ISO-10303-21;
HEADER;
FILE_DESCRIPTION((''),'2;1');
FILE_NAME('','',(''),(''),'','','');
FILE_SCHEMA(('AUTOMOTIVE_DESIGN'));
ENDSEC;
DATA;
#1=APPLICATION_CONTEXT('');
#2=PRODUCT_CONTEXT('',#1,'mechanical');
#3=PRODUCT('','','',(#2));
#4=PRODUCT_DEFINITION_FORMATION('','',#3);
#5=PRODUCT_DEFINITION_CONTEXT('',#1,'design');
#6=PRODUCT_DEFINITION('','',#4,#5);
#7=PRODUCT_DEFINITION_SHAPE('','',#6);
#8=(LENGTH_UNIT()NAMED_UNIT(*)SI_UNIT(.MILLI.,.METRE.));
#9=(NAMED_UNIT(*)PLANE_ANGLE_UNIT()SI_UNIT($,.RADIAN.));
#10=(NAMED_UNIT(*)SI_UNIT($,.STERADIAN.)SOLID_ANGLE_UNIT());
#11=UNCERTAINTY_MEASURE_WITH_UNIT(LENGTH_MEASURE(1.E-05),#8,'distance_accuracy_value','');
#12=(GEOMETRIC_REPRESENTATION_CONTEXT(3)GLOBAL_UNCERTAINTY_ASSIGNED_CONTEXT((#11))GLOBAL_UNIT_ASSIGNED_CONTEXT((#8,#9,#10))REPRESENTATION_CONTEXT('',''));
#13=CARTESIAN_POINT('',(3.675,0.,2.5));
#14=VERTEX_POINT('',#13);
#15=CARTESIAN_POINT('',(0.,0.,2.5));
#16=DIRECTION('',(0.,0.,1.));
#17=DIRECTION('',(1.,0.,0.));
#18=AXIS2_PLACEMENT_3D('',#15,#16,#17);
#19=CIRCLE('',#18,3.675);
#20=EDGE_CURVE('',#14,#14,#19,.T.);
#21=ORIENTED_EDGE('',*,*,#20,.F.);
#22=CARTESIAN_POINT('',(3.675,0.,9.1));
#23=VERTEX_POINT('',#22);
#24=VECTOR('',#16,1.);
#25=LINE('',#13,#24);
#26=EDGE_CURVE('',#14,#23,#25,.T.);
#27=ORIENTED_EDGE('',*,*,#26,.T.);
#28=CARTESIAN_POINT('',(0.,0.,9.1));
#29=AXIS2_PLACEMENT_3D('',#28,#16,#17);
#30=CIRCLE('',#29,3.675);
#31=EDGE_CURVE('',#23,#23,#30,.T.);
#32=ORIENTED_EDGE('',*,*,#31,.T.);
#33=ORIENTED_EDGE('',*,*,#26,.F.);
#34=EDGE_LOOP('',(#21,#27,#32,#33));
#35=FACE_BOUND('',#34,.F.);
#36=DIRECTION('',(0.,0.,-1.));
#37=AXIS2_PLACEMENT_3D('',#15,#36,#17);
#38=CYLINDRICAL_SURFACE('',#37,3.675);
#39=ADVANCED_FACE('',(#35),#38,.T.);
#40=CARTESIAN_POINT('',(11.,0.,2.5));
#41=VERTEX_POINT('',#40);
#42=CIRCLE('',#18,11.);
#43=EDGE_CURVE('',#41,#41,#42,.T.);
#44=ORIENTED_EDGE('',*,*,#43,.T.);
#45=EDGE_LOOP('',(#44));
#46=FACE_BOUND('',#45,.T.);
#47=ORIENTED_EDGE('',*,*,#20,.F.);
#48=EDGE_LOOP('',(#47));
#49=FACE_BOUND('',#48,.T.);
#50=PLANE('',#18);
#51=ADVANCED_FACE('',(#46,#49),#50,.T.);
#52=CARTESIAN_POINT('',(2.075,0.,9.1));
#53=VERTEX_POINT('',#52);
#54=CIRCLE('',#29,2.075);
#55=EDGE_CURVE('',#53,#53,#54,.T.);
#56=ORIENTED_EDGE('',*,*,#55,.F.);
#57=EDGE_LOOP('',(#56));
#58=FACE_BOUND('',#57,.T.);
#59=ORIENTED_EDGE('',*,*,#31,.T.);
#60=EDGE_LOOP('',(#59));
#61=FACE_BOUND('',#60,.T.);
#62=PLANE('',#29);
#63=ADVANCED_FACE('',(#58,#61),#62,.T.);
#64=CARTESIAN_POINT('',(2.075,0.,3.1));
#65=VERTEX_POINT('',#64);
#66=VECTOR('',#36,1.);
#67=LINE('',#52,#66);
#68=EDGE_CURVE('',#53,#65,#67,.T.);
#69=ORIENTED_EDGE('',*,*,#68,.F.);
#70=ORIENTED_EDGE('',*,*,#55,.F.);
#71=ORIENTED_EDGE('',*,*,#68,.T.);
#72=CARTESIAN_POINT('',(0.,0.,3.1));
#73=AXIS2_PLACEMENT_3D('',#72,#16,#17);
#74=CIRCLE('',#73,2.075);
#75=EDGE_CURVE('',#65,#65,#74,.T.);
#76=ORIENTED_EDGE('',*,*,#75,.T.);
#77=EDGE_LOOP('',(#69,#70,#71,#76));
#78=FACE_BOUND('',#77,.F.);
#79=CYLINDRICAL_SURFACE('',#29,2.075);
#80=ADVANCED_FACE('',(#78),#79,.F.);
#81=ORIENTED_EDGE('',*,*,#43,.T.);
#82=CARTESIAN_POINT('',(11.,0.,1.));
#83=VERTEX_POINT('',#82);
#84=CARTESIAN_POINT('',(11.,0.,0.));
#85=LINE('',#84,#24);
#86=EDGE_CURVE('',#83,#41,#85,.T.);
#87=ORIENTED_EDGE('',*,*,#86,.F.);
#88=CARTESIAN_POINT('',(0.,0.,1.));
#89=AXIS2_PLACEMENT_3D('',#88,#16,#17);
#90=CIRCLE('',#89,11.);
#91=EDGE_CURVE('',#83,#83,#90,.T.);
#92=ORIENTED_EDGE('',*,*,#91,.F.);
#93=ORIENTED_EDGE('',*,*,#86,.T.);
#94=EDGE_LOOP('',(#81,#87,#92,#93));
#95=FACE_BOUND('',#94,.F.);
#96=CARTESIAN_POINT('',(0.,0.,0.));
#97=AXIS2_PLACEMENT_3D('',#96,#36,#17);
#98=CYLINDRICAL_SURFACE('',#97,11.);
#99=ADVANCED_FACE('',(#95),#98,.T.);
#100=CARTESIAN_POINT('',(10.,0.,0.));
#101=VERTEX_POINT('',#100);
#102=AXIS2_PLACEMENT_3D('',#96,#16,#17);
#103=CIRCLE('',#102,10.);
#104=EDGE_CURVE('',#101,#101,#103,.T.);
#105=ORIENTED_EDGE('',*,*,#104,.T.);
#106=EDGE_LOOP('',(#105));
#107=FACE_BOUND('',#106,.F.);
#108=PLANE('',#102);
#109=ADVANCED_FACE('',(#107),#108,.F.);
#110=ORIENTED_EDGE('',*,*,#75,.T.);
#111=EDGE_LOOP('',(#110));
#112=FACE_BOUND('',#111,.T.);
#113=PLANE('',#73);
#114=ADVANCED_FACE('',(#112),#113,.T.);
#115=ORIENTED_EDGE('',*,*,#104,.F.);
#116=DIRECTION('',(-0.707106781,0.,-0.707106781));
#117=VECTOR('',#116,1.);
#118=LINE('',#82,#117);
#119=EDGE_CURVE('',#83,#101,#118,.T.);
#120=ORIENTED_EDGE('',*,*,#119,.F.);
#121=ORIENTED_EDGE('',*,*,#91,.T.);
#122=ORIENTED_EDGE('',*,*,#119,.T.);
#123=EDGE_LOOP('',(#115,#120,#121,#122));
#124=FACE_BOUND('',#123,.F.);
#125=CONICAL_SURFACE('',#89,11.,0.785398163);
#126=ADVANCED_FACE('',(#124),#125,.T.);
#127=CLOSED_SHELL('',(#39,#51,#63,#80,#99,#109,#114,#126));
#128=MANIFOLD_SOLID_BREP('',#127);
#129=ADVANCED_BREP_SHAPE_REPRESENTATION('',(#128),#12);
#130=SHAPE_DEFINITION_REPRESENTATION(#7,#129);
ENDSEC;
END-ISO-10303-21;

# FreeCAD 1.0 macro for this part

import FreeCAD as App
import Part
import Sketcher

V = App.Vector
Q = App.Units.Quantity


def edges_at(feature, points):
    """Names of the edges that pass closest to the given points."""
    edges = feature.Shape.Edges
    near = lambda p: min(range(len(edges)), key=lambda i: edges[i].distToShape(Part.Vertex(*p))[0])
    return sorted({f"Edge{near(p) + 1}" for p in points})

doc = App.newDocument("Part")
body = doc.addObject("PartDesign::Body", "Body")

# Sketch on XY plane
sketch1 = body.newObject("Sketcher::SketchObject", "Sketch")
sketch1.AttachmentSupport = (doc.getObject("XY_Plane"), [""])
sketch1.MapMode = "FlatFace"
sketch1.addGeometry(Part.Circle(V(0, 0, 0), V(0, 0, 1), 11), False)
sketch1.addConstraint(Sketcher.Constraint("Coincident", 0, 3, -1, 1))
sketch1.addConstraint(Sketcher.Constraint("Diameter", 0, Q("22 mm")))
pad1 = body.newObject("PartDesign::Pad", "Pad")
pad1.Profile = sketch1
pad1.Length = 2.5
doc.recompute()

chamfer = body.newObject("PartDesign::Chamfer", "Chamfer")
chamfer.Base = (pad1, edges_at(pad1, [(-11, 0, 0)]))
chamfer.ChamferType = "Two distances"
chamfer.Size = 1
chamfer.Size2 = 1

# Sketch on XY plane
sketch2 = body.newObject("Sketcher::SketchObject", "Sketch001")
sketch2.AttachmentSupport = (doc.getObject("XY_Plane"), [""])
sketch2.MapMode = "FlatFace"
sketch2.AttachmentOffset = App.Placement(V(0, 0, 2.5), App.Rotation())
sketch2.addGeometry(Part.Circle(V(0, 0, 0), V(0, 0, 1), 3.675), False)
sketch2.addConstraint(Sketcher.Constraint("Coincident", 0, 3, -1, 1))
sketch2.addConstraint(Sketcher.Constraint("Diameter", 0, Q("7.35 mm")))
pad2 = body.newObject("PartDesign::Pad", "Pad001")
pad2.Profile = sketch2
pad2.Length = 6.6

# Sketch on XY plane
sketch3 = body.newObject("Sketcher::SketchObject", "Sketch002")
sketch3.AttachmentSupport = (doc.getObject("XY_Plane"), [""])
sketch3.MapMode = "FlatFace"
sketch3.AttachmentOffset = App.Placement(V(0, 0, 9.1), App.Rotation())
sketch3.addGeometry(Part.Circle(V(0, 0, 0), V(0, 0, 1), 2.075), False)
sketch3.addConstraint(Sketcher.Constraint("Coincident", 0, 3, -1, 1))
sketch3.addConstraint(Sketcher.Constraint("Diameter", 0, Q("4.15 mm")))
pocket1 = body.newObject("PartDesign::Pocket", "Pocket")
pocket1.Profile = sketch3
pocket1.Length = 6

doc.recompute()
